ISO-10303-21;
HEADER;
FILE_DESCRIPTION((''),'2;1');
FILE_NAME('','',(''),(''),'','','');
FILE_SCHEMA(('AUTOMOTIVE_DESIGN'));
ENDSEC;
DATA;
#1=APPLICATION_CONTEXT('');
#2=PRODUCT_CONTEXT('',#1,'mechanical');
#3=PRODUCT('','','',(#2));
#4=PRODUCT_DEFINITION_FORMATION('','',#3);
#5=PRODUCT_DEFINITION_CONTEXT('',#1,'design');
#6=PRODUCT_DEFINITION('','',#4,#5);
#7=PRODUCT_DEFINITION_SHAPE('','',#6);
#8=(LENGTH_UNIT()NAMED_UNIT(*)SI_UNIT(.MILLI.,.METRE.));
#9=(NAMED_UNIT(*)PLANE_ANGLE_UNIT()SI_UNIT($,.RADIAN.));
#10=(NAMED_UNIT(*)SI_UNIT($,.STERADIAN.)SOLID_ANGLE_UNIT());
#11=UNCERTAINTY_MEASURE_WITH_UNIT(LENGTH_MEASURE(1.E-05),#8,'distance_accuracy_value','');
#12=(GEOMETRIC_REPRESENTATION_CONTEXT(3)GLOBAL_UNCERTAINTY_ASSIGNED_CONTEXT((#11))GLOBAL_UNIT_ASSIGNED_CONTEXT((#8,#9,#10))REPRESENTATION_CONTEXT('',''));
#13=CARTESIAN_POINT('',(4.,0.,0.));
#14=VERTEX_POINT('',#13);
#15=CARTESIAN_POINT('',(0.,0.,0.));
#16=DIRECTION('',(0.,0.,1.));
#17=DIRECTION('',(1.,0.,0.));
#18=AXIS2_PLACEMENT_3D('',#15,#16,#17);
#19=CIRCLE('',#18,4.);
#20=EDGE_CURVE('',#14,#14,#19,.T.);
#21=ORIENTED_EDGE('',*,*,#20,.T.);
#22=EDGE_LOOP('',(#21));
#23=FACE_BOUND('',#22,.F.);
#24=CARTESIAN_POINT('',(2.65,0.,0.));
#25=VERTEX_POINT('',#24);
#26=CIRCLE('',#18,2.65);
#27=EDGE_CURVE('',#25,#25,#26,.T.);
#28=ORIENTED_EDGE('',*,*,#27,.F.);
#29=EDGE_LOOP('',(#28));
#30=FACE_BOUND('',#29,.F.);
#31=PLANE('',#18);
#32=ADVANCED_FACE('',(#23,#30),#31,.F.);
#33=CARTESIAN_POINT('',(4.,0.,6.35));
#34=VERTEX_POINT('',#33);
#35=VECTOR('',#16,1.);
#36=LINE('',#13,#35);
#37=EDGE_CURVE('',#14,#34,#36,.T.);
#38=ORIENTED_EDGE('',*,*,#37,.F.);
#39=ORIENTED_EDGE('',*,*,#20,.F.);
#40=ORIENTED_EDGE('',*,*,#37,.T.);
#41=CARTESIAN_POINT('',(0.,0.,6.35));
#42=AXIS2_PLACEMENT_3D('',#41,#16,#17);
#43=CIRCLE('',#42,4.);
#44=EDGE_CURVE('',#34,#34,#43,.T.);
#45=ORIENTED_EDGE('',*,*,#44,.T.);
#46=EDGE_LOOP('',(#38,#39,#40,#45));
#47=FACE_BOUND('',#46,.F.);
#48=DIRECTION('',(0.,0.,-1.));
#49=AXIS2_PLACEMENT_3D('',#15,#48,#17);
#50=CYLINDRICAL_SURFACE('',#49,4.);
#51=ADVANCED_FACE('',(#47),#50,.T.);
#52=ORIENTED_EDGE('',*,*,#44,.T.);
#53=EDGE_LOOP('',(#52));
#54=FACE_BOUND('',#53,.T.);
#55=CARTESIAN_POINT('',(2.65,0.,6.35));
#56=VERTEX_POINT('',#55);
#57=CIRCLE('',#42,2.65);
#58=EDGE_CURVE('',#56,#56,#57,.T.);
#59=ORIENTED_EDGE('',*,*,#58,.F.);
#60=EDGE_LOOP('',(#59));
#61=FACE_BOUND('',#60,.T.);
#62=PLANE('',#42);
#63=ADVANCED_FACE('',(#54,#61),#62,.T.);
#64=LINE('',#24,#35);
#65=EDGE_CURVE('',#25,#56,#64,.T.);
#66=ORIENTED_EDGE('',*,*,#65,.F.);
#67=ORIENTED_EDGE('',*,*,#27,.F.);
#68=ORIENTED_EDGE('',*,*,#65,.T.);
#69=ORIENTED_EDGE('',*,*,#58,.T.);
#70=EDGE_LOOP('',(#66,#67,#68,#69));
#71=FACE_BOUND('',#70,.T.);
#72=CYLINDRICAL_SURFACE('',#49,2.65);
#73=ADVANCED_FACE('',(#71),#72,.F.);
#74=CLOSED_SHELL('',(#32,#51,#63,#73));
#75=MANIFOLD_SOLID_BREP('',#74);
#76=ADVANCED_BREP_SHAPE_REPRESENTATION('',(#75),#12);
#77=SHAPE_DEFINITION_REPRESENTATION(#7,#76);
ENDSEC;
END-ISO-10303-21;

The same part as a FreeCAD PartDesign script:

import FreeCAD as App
import Part
import Sketcher

doc = App.newDocument("Part")
body = doc.addObject("PartDesign::Body", "Body")

# Sketch on XY plane
sketch1 = body.newObject("Sketcher::SketchObject", "Sketch")
sketch1.AttachmentSupport = (doc.getObject("XY_Plane"), [""])
sketch1.MapMode = "FlatFace"
sketch1.addGeometry([
    Part.Circle(App.Vector(0, 0, 0), App.Vector(0, 0, 1), 4),
    Part.Circle(App.Vector(0, 0, 0), App.Vector(0, 0, 1), 2.65),
], False)
sketch1.addConstraint([
    Sketcher.Constraint("Coincident", 0, 3, -1, 1),
    Sketcher.Constraint("Coincident", 1, 3, -1, 1),
    Sketcher.Constraint("Diameter", 0, 8.0),
    Sketcher.Constraint("Diameter", 1, 5.3),
])
pad1 = body.newObject("PartDesign::Pad", "Pad")
pad1.Profile = sketch1
pad1.Length = 6.35

doc.recompute()
